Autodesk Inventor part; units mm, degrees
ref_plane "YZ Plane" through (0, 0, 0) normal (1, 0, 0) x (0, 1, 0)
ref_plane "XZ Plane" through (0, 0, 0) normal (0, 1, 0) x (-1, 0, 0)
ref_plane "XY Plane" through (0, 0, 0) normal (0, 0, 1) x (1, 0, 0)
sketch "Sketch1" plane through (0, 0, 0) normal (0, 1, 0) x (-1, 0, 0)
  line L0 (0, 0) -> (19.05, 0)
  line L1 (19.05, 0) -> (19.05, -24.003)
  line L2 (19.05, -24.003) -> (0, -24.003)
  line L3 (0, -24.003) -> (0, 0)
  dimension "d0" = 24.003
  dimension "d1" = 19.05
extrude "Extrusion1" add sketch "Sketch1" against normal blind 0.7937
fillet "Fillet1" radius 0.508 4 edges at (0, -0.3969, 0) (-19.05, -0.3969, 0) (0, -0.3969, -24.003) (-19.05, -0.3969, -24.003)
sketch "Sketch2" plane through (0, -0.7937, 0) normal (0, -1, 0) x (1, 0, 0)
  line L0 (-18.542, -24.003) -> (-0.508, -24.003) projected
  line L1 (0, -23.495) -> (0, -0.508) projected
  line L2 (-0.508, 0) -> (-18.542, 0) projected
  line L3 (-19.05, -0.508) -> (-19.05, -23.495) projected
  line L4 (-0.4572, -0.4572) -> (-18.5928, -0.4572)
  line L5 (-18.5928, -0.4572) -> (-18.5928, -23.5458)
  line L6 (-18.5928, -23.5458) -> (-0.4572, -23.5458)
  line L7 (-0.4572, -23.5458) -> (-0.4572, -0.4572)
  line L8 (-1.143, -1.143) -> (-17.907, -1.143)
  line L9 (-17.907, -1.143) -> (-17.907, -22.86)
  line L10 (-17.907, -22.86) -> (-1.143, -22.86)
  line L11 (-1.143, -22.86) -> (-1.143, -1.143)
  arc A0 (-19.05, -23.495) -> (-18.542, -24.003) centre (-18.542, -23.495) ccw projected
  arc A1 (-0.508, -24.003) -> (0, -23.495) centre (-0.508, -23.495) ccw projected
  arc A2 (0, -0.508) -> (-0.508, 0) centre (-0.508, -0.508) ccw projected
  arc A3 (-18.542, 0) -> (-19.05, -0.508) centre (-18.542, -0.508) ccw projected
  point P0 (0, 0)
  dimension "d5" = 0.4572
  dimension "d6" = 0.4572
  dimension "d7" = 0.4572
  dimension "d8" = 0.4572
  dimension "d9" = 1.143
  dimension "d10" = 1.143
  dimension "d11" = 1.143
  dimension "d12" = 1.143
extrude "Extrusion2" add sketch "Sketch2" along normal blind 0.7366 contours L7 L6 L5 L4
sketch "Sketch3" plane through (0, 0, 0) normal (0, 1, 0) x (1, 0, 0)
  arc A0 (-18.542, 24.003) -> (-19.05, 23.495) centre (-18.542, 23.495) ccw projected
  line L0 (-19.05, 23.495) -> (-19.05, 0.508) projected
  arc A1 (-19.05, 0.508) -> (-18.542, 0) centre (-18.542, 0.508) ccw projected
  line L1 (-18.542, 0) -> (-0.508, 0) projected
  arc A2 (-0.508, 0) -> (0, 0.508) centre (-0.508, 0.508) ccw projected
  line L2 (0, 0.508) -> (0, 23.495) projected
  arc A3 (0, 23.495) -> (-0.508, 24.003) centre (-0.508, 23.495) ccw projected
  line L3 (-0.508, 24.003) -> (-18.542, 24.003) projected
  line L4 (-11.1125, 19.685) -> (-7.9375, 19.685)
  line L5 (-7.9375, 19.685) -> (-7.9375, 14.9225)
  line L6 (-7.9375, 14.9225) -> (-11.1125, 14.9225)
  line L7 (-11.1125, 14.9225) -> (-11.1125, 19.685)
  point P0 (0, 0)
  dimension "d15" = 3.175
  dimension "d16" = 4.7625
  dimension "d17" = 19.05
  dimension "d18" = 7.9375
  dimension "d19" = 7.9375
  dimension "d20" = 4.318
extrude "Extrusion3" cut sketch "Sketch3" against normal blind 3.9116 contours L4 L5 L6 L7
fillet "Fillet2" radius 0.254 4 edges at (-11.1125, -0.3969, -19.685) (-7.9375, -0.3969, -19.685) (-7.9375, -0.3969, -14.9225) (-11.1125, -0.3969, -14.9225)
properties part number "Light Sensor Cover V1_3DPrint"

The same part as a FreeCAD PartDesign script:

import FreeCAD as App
import Part
import Sketcher

V = App.Vector
Q = App.Units.Quantity


def edges_at(feature, points):
    """Names of the edges that pass closest to the given points."""
    edges = feature.Shape.Edges
    near = lambda p: min(range(len(edges)), key=lambda i: edges[i].distToShape(Part.Vertex(*p))[0])
    return sorted({f"Edge{near(p) + 1}" for p in points})

doc = App.newDocument("Part")
body = doc.addObject("PartDesign::Body", "Body")

# Sketch on XZ plane
sketch1 = body.newObject("Sketcher::SketchObject", "Sketch")
sketch1.AttachmentSupport = (doc.getObject("XZ_Plane"), [""])
sketch1.MapMode = "FlatFace"
sketch1.addGeometry([
    Part.LineSegment(V(-19, 0, 0), V(0, 0, 0)),
    Part.LineSegment(V(0, 0, 0), V(0, -24, 0)),
    Part.LineSegment(V(0, -24, 0), V(-19, -24, 0)),
    Part.LineSegment(V(-19, -24, 0), V(-19, 0, 0)),
], False)
sketch1.addConstraint([
    Sketcher.Constraint("Coincident", 0, 2, 1, 1),
    Sketcher.Constraint("Coincident", 1, 2, 2, 1),
    Sketcher.Constraint("Coincident", 2, 2, 3, 1),
    Sketcher.Constraint("Coincident", 3, 2, 0, 1),
    Sketcher.Constraint("Horizontal", 0),
    Sketcher.Constraint("Vertical", 1),
    Sketcher.Constraint("Horizontal", 2),
    Sketcher.Constraint("Vertical", 3),
    Sketcher.Constraint("Coincident", 0, 2, -1, 1),
    Sketcher.Constraint("DistanceX", 0, 1, 0, 2, Q("0.75 in")),
    Sketcher.Constraint("DistanceY", 1, 2, 1, 1, Q("0.945 in")),
])
pad1 = body.newObject("PartDesign::Pad", "Pad")
pad1.Profile = sketch1
pad1.Length = Q("0.031248 in")
doc.recompute()

fillet = body.newObject("PartDesign::Fillet", "Fillet")
fillet.Base = (pad1, edges_at(pad1, [
    (0, -0.397, 0),
    (-19.05, -0.397, 0),
    (0, -0.397, -24.003),
    (-19.05, -0.397, -24.003),
]))
fillet.Radius = Q("0.02 in")

# Sketch on XZ plane
sketch2 = body.newObject("Sketcher::SketchObject", "Sketch001")
sketch2.AttachmentSupport = (doc.getObject("XZ_Plane"), [""])
sketch2.MapMode = "FlatFace"
sketch2.AttachmentOffset = App.Placement(V(0, 0, 0.031248 * 25.4), App.Rotation())
sketch2.addGeometry([
    Part.LineSegment(V(0, -24, 0), V(0, 0, 0)),  # 0
    Part.LineSegment(V(0, 0, 0), V(-19, 0, 0)),  # 1
    Part.LineSegment(V(-19, 0, 0), V(-19, -24, 0)),  # 2
    Part.LineSegment(V(-19, -24, 0), V(0, -24, 0)),  # 3
    Part.LineSegment(V(-18, -1, 0), V(-1, -1, 0)),  # 4
    Part.LineSegment(V(-1, -1, 0), V(-1, -23, 0)),  # 5
    Part.LineSegment(V(-1, -23, 0), V(-18, -23, 0)),  # 6
    Part.LineSegment(V(-18, -23, 0), V(-18, -1, 0)),  # 7
], False)
sketch2.addConstraint([
    Sketcher.Constraint("Coincident", 0, 2, 1, 1),
    Sketcher.Constraint("Coincident", 1, 2, 2, 1),
    Sketcher.Constraint("Coincident", 2, 2, 3, 1),
    Sketcher.Constraint("Coincident", 3, 2, 0, 1),
    Sketcher.Constraint("Coincident", 4, 2, 5, 1),
    Sketcher.Constraint("Coincident", 5, 2, 6, 1),
    Sketcher.Constraint("Coincident", 6, 2, 7, 1),
    Sketcher.Constraint("Coincident", 7, 2, 4, 1),
    Sketcher.Constraint("Vertical", 0),
    Sketcher.Constraint("Horizontal", 1),
    Sketcher.Constraint("Vertical", 2),
    Sketcher.Constraint("Horizontal", 3),
    Sketcher.Constraint("Horizontal", 4),
    Sketcher.Constraint("Vertical", 5),
    Sketcher.Constraint("Horizontal", 6),
    Sketcher.Constraint("Vertical", 7),
    Sketcher.Constraint("DistanceX", 0, 2, -1, 1, Q("0.018 in")),
    Sketcher.Constraint("DistanceY", 0, 2, -1, 1, Q("0.018 in")),
    Sketcher.Constraint("DistanceX", 4, 2, -1, 1, Q("0.045 in")),
    Sketcher.Constraint("DistanceY", 4, 2, -1, 1, Q("0.045 in")),
    Sketcher.Constraint("DistanceX", 4, 1, 4, 2, Q("0.66 in")),
    Sketcher.Constraint("DistanceY", 5, 2, -1, 1, Q("0.9 in")),
    Sketcher.Constraint("DistanceX", 1, 2, 1, 1, Q("0.714 in")),
    Sketcher.Constraint("DistanceY", 0, 1, 0, 2, Q("0.909 in")),
])
pad2 = body.newObject("PartDesign::Pad", "Pad001")
pad2.Profile = sketch2
pad2.Length = Q("0.029 in")

# Sketch on XZ plane
sketch3 = body.newObject("Sketcher::SketchObject", "Sketch002")
sketch3.AttachmentSupport = (doc.getObject("XZ_Plane"), [""])
sketch3.MapMode = "FlatFace"
sketch3.addGeometry([
    Part.LineSegment(V(-7.9, -19.7, 0), V(-11.1, -19.7, 0)),
    Part.LineSegment(V(-11.1, -19.7, 0), V(-11.1, -14.9, 0)),
    Part.LineSegment(V(-11.1, -14.9, 0), V(-7.9, -14.9, 0)),
    Part.LineSegment(V(-7.9, -14.9, 0), V(-7.9, -19.7, 0)),
], False)
sketch3.addConstraint([
    Sketcher.Constraint("Coincident", 0, 2, 1, 1),
    Sketcher.Constraint("Coincident", 1, 2, 2, 1),
    Sketcher.Constraint("Coincident", 2, 2, 3, 1),
    Sketcher.Constraint("Coincident", 3, 2, 0, 1),
    Sketcher.Constraint("Horizontal", 0),
    Sketcher.Constraint("Vertical", 1),
    Sketcher.Constraint("Horizontal", 2),
    Sketcher.Constraint("Vertical", 3),
    Sketcher.Constraint("DistanceX", 0, 2, 0, 1, Q("0.125 in")),
    Sketcher.Constraint("DistanceY", 1, 1, 1, 2, Q("0.1875 in")),
    Sketcher.Constraint("DistanceX", 2, 2, -1, 1, Q("0.3125 in")),
    Sketcher.Constraint("DistanceY", 0, 2, -1, 1, Q("0.775 in")),
])
pocket1 = body.newObject("PartDesign::Pocket", "Pocket")
pocket1.Profile = sketch3
pocket1.Length = Q("0.154 in")
pocket1.Reversed = True
doc.recompute()

fillet2 = body.newObject("PartDesign::Fillet", "Fillet001")
fillet2.Base = (pocket1, edges_at(pocket1, [
    (-11.113, -0.397, -19.685),
    (-7.938, -0.397, -19.685),
    (-7.938, -0.397, -14.922),
    (-11.113, -0.397, -14.922),
]))
fillet2.Radius = Q("0.01 in")

doc.recompute()
